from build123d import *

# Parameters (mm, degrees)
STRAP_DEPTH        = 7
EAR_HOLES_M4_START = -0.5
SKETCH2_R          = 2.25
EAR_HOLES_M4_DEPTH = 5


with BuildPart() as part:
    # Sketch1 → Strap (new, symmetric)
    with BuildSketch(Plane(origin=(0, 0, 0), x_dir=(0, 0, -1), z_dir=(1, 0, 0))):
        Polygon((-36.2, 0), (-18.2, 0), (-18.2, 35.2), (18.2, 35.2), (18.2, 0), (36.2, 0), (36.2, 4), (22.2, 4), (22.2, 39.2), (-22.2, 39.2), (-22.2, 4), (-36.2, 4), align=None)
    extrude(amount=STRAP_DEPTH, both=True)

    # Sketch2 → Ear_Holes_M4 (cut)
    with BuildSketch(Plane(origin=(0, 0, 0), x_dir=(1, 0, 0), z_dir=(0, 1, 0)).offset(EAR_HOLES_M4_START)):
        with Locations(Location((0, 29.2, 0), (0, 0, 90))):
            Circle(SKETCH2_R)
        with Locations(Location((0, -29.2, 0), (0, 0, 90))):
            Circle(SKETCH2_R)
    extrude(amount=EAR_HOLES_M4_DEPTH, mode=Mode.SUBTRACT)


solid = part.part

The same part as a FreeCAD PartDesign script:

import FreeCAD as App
import Part
import Sketcher


def add_polygon(sketch, points):
    """Adds a closed chain of lines whose ends are joined by coincident constraints."""
    first, n = sketch.GeometryCount, len(points)
    for a, b in zip(points, points[1:] + points[:1]):
        sketch.addGeometry(Part.LineSegment(App.Vector(*a, 0), App.Vector(*b, 0)), False)
    for i in range(n):
        sketch.addConstraint(Sketcher.Constraint("Coincident", first + i, 2, first + (i + 1) % n, 1))

doc = App.newDocument("Part")
params = doc.addObject("Spreadsheet::Sheet", "Params")
for row, (alias, value) in enumerate([
    ("sketch1_width", "4 mm"),
    ("sketch1_height", "18 mm"),
    ("sketch1_height2", "14 mm"),
    ("sketch1_width2", "35.2 mm"),
    ("sketch1_height3", "36.4 mm"),
    ("pad1_length", "14 mm"),
    ("sketch2_diameter", "4.5 mm"),
    ("pocket1_length", "5 mm"),
], start=1):
    params.set(f"A{row}", alias)
    params.set(f"B{row}", "=" + value)
    params.setAlias(f"B{row}", alias)

body = doc.addObject("PartDesign::Body", "Body")

# Sketch on YZ plane
sketch1 = body.newObject("Sketcher::SketchObject", "Sketch")
sketch1.AttachmentSupport = (doc.getObject("YZ_Plane"), [""])
sketch1.MapMode = "FlatFace"
add_polygon(sketch1, [(0, 36.2), (0, 18.2), (35.2, 18.2), (35.2, -18.2), (0, -18.2), (0, -36.2), (4, -36.2), (4, -22.2), (39.2, -22.2), (39.2, 22.2), (4, 22.2), (4, 36.2)])  # lines 0-11
sketch1.addConstraint(Sketcher.Constraint("Vertical", 0))
sketch1.addConstraint(Sketcher.Constraint("Horizontal", 1))
sketch1.addConstraint(Sketcher.Constraint("Vertical", 2))
sketch1.addConstraint(Sketcher.Constraint("Horizontal", 3))
sketch1.addConstraint(Sketcher.Constraint("Vertical", 4))
sketch1.addConstraint(Sketcher.Constraint("Horizontal", 5))
sketch1.addConstraint(Sketcher.Constraint("Vertical", 6))
sketch1.addConstraint(Sketcher.Constraint("Horizontal", 7))
sketch1.addConstraint(Sketcher.Constraint("Vertical", 8))
sketch1.addConstraint(Sketcher.Constraint("Horizontal", 9))
sketch1.addConstraint(Sketcher.Constraint("Vertical", 10))
sketch1.addConstraint(Sketcher.Constraint("Horizontal", 11))
sketch1.addConstraint(Sketcher.Constraint("Symmetric", 0, 2, 3, 2, -1, 1))
sketch1.addConstraint(Sketcher.Constraint("Symmetric", 6, 2, 9, 2, -1))
sketch1.addConstraint(Sketcher.Constraint("Symmetric", 4, 2, 11, 2, -1))
sketch1.addConstraint(Sketcher.Constraint("Equal", 3, 7))
sketch1.addConstraint(Sketcher.Constraint("DistanceX", 5, 1, 5, 2, 4.0))
sketch1.addConstraint(Sketcher.Constraint("DistanceY", 0, 2, 0, 1, 18.0))
sketch1.addConstraint(Sketcher.Constraint("DistanceY", 6, 1, 6, 2, 14.0))
sketch1.addConstraint(Sketcher.Constraint("DistanceX", 1, 1, 1, 2, 35.2))
sketch1.addConstraint(Sketcher.Constraint("DistanceY", 2, 2, 2, 1, 36.4))
sketch1.setExpression("Constraints[28]", "Params.sketch1_width")
sketch1.setExpression("Constraints[29]", "Params.sketch1_height")
sketch1.setExpression("Constraints[30]", "Params.sketch1_height2")
sketch1.setExpression("Constraints[31]", "Params.sketch1_width2")
sketch1.setExpression("Constraints[32]", "Params.sketch1_height3")
pad1 = body.newObject("PartDesign::Pad", "Pad")
pad1.Profile = sketch1
pad1.setExpression("Length", "Params.pad1_length")
pad1.Midplane = True

# Sketch on XZ plane
sketch2 = body.newObject("Sketcher::SketchObject", "Sketch001")
sketch2.AttachmentSupport = (doc.getObject("XZ_Plane"), [""])
sketch2.MapMode = "FlatFace"
sketch2.AttachmentOffset = App.Placement(App.Vector(0, 0, 0.5), App.Rotation())
sketch2.addGeometry(Part.Circle(App.Vector(0, -29.2, 0), App.Vector(0, 0, 1), 2.2), False)
sketch2.addGeometry(Part.Circle(App.Vector(0, 29.2, 0), App.Vector(0, 0, 1), 2.2), False)
sketch2.addConstraint(Sketcher.Constraint("Equal", 0, 1))
sketch2.addConstraint(Sketcher.Constraint("Symmetric", 0, 3, 1, 3, -1, 1))
sketch2.addConstraint(Sketcher.Constraint("PointOnObject", 0, 3, -2))
sketch2.addConstraint(Sketcher.Constraint("Diameter", 0, 4.5))
sketch2.addConstraint(Sketcher.Constraint("DistanceY", 0, 3, -1, 1, 29.2))
sketch2.setExpression("Constraints[3]", "Params.sketch2_diameter")
pocket1 = body.newObject("PartDesign::Pocket", "Pocket")
pocket1.Profile = sketch2
pocket1.setExpression("Length", "Params.pocket1_length")

doc.recompute()
